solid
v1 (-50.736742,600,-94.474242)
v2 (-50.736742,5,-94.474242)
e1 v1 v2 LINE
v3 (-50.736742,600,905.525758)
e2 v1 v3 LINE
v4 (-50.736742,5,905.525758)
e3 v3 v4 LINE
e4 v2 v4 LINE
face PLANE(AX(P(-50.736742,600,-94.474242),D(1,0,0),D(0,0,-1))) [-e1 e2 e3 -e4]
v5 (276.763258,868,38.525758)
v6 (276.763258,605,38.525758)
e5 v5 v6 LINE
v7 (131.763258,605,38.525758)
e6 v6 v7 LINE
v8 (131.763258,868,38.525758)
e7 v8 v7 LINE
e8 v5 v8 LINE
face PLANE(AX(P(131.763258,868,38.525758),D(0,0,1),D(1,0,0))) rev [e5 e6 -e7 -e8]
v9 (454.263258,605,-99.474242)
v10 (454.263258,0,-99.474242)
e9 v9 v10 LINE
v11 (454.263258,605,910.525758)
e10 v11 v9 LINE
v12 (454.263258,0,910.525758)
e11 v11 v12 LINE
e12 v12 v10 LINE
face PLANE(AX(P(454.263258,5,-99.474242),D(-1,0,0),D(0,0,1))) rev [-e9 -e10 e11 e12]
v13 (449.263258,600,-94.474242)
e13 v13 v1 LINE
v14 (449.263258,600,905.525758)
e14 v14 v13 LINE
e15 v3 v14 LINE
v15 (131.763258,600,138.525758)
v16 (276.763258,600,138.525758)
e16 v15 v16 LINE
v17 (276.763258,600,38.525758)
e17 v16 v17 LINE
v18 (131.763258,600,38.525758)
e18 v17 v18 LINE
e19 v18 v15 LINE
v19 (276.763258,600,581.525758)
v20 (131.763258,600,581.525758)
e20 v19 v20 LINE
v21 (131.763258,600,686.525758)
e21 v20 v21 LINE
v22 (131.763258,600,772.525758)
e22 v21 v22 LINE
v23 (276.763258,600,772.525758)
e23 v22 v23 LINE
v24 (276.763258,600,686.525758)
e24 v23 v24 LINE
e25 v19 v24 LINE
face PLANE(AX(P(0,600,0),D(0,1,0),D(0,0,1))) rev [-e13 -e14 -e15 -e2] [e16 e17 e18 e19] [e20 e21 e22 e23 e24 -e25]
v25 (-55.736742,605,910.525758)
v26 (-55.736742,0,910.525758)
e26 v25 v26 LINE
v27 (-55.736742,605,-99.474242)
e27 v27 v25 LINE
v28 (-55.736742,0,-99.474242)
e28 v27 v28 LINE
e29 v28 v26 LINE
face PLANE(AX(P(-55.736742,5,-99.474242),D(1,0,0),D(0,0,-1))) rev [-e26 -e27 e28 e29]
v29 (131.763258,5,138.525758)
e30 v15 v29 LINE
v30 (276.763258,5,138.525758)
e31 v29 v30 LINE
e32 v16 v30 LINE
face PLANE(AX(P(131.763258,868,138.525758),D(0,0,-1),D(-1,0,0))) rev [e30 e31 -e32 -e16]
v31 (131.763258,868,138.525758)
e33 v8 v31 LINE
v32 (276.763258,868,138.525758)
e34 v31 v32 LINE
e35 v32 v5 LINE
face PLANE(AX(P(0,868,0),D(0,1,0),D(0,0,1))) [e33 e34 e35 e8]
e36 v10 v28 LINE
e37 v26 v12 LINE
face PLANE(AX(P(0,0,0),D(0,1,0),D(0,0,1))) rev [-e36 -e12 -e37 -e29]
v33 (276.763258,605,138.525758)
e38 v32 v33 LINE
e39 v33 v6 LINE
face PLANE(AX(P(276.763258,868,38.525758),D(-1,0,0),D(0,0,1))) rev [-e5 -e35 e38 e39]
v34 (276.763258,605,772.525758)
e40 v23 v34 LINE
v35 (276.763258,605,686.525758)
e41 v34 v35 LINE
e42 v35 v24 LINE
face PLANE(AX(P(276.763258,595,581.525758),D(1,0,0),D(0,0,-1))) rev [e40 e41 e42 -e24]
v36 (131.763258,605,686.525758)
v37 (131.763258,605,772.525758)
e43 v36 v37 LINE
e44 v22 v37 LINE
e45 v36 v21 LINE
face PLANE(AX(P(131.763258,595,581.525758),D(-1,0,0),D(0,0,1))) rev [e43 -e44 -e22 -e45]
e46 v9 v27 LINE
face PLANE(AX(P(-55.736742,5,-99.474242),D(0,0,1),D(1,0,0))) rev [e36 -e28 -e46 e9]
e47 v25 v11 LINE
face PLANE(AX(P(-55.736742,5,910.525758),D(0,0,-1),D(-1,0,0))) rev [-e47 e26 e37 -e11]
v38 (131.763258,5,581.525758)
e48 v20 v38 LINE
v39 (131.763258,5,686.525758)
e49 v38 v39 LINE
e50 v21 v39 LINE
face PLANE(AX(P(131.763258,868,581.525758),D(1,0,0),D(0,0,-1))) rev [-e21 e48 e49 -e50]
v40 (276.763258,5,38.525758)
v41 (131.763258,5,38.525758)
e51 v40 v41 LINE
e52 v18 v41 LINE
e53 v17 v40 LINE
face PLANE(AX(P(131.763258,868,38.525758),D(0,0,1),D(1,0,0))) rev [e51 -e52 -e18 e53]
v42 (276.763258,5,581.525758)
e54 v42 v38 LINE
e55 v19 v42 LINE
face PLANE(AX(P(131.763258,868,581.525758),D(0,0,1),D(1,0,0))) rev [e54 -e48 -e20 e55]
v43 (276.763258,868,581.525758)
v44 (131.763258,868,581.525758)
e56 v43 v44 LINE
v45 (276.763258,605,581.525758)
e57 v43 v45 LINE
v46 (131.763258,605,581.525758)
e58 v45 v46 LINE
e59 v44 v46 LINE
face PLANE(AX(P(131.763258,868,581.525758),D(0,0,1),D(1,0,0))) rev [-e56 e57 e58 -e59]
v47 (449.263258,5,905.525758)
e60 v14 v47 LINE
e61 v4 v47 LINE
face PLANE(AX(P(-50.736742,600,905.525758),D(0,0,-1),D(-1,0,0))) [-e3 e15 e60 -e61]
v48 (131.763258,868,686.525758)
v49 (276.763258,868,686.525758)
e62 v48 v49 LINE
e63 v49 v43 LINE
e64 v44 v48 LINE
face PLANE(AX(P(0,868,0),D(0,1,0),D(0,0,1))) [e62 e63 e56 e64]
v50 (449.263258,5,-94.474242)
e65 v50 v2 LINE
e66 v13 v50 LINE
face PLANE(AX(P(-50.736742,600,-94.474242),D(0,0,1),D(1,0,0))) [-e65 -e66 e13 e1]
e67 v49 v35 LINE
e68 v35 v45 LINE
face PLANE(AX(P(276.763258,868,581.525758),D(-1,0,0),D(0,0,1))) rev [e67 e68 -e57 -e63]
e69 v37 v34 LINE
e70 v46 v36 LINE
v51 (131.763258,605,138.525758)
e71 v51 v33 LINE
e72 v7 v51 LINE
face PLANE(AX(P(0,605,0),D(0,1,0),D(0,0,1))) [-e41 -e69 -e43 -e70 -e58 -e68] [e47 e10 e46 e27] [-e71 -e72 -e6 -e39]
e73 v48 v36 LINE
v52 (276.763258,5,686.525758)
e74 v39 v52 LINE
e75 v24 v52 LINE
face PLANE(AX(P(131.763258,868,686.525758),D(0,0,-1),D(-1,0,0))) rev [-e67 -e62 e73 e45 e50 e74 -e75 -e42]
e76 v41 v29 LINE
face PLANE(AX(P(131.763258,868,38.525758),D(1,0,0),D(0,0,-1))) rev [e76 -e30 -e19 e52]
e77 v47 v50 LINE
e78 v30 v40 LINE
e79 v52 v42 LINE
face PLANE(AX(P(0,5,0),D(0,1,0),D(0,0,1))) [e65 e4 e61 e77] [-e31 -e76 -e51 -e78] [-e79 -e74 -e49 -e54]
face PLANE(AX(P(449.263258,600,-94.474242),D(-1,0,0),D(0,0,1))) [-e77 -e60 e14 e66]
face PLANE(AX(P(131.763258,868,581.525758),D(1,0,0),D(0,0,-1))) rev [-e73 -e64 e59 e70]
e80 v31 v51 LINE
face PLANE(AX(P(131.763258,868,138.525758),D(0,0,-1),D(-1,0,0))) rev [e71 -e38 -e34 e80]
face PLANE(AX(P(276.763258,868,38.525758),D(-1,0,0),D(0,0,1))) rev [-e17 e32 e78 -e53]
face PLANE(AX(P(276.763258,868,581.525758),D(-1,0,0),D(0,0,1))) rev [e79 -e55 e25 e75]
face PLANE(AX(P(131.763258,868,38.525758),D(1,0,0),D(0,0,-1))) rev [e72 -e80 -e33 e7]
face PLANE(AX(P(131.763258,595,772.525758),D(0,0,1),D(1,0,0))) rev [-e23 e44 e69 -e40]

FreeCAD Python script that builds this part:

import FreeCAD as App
import Part
import Sketcher

doc = App.newDocument("Part")
body = doc.addObject("PartDesign::Body", "Body")

sketch1 = doc.addObject("Sketcher::SketchObject", "Sketch")
body.addObject(sketch1)
sketch1.AttachmentSupport = (doc.XZ_Plane, [""])
sketch1.MapMode = "FlatFace"
sketch1.addGeometry(Part.LineSegment(App.Vector(-56, -99, 0), App.Vector(-56, 911, 0)), False)
sketch1.addGeometry(Part.LineSegment(App.Vector(-56, 911, 0), App.Vector(454, 911, 0)), False)
sketch1.addGeometry(Part.LineSegment(App.Vector(454, 911, 0), App.Vector(454, -99, 0)), False)
sketch1.addGeometry(Part.LineSegment(App.Vector(454, -99, 0), App.Vector(-56, -99, 0)), False)
sketch1.addConstraint(Sketcher.Constraint("Coincident", 0, 2, 1, 1))
sketch1.addConstraint(Sketcher.Constraint("Coincident", 1, 2, 2, 1))
sketch1.addConstraint(Sketcher.Constraint("Coincident", 2, 2, 3, 1))
sketch1.addConstraint(Sketcher.Constraint("Coincident", 3, 2, 0, 1))
sketch1.addConstraint(Sketcher.Constraint("Vertical", 0))
sketch1.addConstraint(Sketcher.Constraint("Horizontal", 1))
sketch1.addConstraint(Sketcher.Constraint("Vertical", 2))
sketch1.addConstraint(Sketcher.Constraint("Horizontal", 3))
sketch1.addConstraint(Sketcher.Constraint("DistanceX", 1, 1, 1, 2, 510.0))
sketch1.addConstraint(Sketcher.Constraint("DistanceY", 0, 1, 0, 2, 1010.0))
sketch1.addConstraint(Sketcher.Constraint("DistanceY", -1, 1, 0, 2, 910.525758))
sketch1.addConstraint(Sketcher.Constraint("DistanceX", 0, 2, -1, 1, 55.736742))
pad1 = doc.addObject("PartDesign::Pad", "Pad")
body.addObject(pad1)
pad1.Profile = sketch1
pad1.Length = 5
pad1.Reversed = True

sketch2 = doc.addObject("Sketcher::SketchObject", "Sketch001")
body.addObject(sketch2)
sketch2.AttachmentSupport = (doc.XZ_Plane, [""])
sketch2.MapMode = "FlatFace"
sketch2.AttachmentOffset = App.Placement(App.Vector(0, 0, -5), App.Rotation())
sketch2.addGeometry(Part.LineSegment(App.Vector(-56, -99, 0), App.Vector(-56, 911, 0)), False)
sketch2.addGeometry(Part.LineSegment(App.Vector(-56, 911, 0), App.Vector(454, 911, 0)), False)
sketch2.addGeometry(Part.LineSegment(App.Vector(454, 911, 0), App.Vector(454, -99, 0)), False)
sketch2.addGeometry(Part.LineSegment(App.Vector(454, -99, 0), App.Vector(-56, -99, 0)), False)
sketch2.addGeometry(Part.LineSegment(App.Vector(449, 906, 0), App.Vector(-51, 906, 0)), False)
sketch2.addGeometry(Part.LineSegment(App.Vector(-51, 906, 0), App.Vector(-51, -94, 0)), False)
sketch2.addGeometry(Part.LineSegment(App.Vector(-51, -94, 0), App.Vector(449, -94, 0)), False)
sketch2.addGeometry(Part.LineSegment(App.Vector(449, -94, 0), App.Vector(449, 906, 0)), False)
sketch2.addConstraint(Sketcher.Constraint("Coincident", 0, 2, 1, 1))
sketch2.addConstraint(Sketcher.Constraint("Coincident", 1, 2, 2, 1))
sketch2.addConstraint(Sketcher.Constraint("Coincident", 2, 2, 3, 1))
sketch2.addConstraint(Sketcher.Constraint("Coincident", 3, 2, 0, 1))
sketch2.addConstraint(Sketcher.Constraint("Coincident", 4, 2, 5, 1))
sketch2.addConstraint(Sketcher.Constraint("Coincident", 5, 2, 6, 1))
sketch2.addConstraint(Sketcher.Constraint("Coincident", 6, 2, 7, 1))
sketch2.addConstraint(Sketcher.Constraint("Coincident", 7, 2, 4, 1))
sketch2.addConstraint(Sketcher.Constraint("Vertical", 0))
sketch2.addConstraint(Sketcher.Constraint("Horizontal", 1))
sketch2.addConstraint(Sketcher.Constraint("Vertical", 2))
sketch2.addConstraint(Sketcher.Constraint("Horizontal", 3))
sketch2.addConstraint(Sketcher.Constraint("Horizontal", 4))
sketch2.addConstraint(Sketcher.Constraint("Vertical", 5))
sketch2.addConstraint(Sketcher.Constraint("Horizontal", 6))
sketch2.addConstraint(Sketcher.Constraint("Vertical", 7))
sketch2.addConstraint(Sketcher.Constraint("DistanceX", 1, 1, 1, 2, 510.0))
sketch2.addConstraint(Sketcher.Constraint("DistanceX", 4, 2, 4, 1, 500.0))
sketch2.addConstraint(Sketcher.Constraint("DistanceY", 0, 1, 0, 2, 1010.0))
sketch2.addConstraint(Sketcher.Constraint("DistanceY", 5, 2, 5, 1, 1000.0))
sketch2.addConstraint(Sketcher.Constraint("DistanceX", 0, 2, 4, 2, 5.0))
sketch2.addConstraint(Sketcher.Constraint("DistanceY", 4, 2, 0, 2, 5.0))
sketch2.addConstraint(Sketcher.Constraint("DistanceY", -1, 1, 0, 2, 910.525758))
sketch2.addConstraint(Sketcher.Constraint("DistanceX", 0, 2, -1, 1, 55.736742))
pad2 = doc.addObject("PartDesign::Pad", "Pad001")
body.addObject(pad2)
pad2.Profile = sketch2
pad2.Length = 595
pad2.Reversed = True

sketch3 = doc.addObject("Sketcher::SketchObject", "Sketch002")
body.addObject(sketch3)
sketch3.AttachmentSupport = (doc.XZ_Plane, [""])
sketch3.MapMode = "FlatFace"
sketch3.AttachmentOffset = App.Placement(App.Vector(0, 0, -600), App.Rotation())
sketch3.addGeometry(Part.LineSegment(App.Vector(-56, -99, 0), App.Vector(-56, 911, 0)), False)
sketch3.addGeometry(Part.LineSegment(App.Vector(-56, 911, 0), App.Vector(454, 911, 0)), False)
sketch3.addGeometry(Part.LineSegment(App.Vector(454, 911, 0), App.Vector(454, -99, 0)), False)
sketch3.addGeometry(Part.LineSegment(App.Vector(454, -99, 0), App.Vector(-56, -99, 0)), False)
sketch3.addConstraint(Sketcher.Constraint("Coincident", 0, 2, 1, 1))
sketch3.addConstraint(Sketcher.Constraint("Coincident", 1, 2, 2, 1))
sketch3.addConstraint(Sketcher.Constraint("Coincident", 2, 2, 3, 1))
sketch3.addConstraint(Sketcher.Constraint("Coincident", 3, 2, 0, 1))
sketch3.addConstraint(Sketcher.Constraint("Vertical", 0))
sketch3.addConstraint(Sketcher.Constraint("Horizontal", 1))
sketch3.addConstraint(Sketcher.Constraint("Vertical", 2))
sketch3.addConstraint(Sketcher.Constraint("Horizontal", 3))
sketch3.addConstraint(Sketcher.Constraint("DistanceX", 1, 1, 1, 2, 510.0))
sketch3.addConstraint(Sketcher.Constraint("DistanceY", 0, 1, 0, 2, 1010.0))
sketch3.addConstraint(Sketcher.Constraint("DistanceY", -1, 1, 0, 2, 910.525758))
sketch3.addConstraint(Sketcher.Constraint("DistanceX", 0, 2, -1, 1, 55.736742))
pad3 = doc.addObject("PartDesign::Pad", "Pad002")
body.addObject(pad3)
pad3.Profile = sketch3
pad3.Length = 5
pad3.Reversed = True

sketch4 = doc.addObject("Sketcher::SketchObject", "Sketch003")
body.addObject(sketch4)
sketch4.AttachmentSupport = (doc.XZ_Plane, [""])
sketch4.MapMode = "FlatFace"
sketch4.AttachmentOffset = App.Placement(App.Vector(0, 0, -605), App.Rotation())
sketch4.addGeometry(Part.LineSegment(App.Vector(132, 582, 0), App.Vector(132, 773, 0)), False)
sketch4.addGeometry(Part.LineSegment(App.Vector(132, 773, 0), App.Vector(277, 773, 0)), False)
sketch4.addGeometry(Part.LineSegment(App.Vector(277, 773, 0), App.Vector(277, 582, 0)), False)
sketch4.addGeometry(Part.LineSegment(App.Vector(277, 582, 0), App.Vector(132, 582, 0)), False)
sketch4.addGeometry(Part.LineSegment(App.Vector(132, 39, 0), App.Vector(132, 139, 0)), False)
sketch4.addGeometry(Part.LineSegment(App.Vector(132, 139, 0), App.Vector(277, 139, 0)), False)
sketch4.addGeometry(Part.LineSegment(App.Vector(277, 139, 0), App.Vector(277, 39, 0)), False)
sketch4.addGeometry(Part.LineSegment(App.Vector(277, 39, 0), App.Vector(132, 39, 0)), False)
sketch4.addConstraint(Sketcher.Constraint("Coincident", 0, 2, 1, 1))
sketch4.addConstraint(Sketcher.Constraint("Coincident", 1, 2, 2, 1))
sketch4.addConstraint(Sketcher.Constraint("Coincident", 2, 2, 3, 1))
sketch4.addConstraint(Sketcher.Constraint("Coincident", 3, 2, 0, 1))
sketch4.addConstraint(Sketcher.Constraint("Coincident", 4, 2, 5, 1))
sketch4.addConstraint(Sketcher.Constraint("Coincident", 5, 2, 6, 1))
sketch4.addConstraint(Sketcher.Constraint("Coincident", 6, 2, 7, 1))
sketch4.addConstraint(Sketcher.Constraint("Coincident", 7, 2, 4, 1))
sketch4.addConstraint(Sketcher.Constraint("Vertical", 0))
sketch4.addConstraint(Sketcher.Constraint("Horizontal", 1))
sketch4.addConstraint(Sketcher.Constraint("Vertical", 2))
sketch4.addConstraint(Sketcher.Constraint("Horizontal", 3))
sketch4.addConstraint(Sketcher.Constraint("Vertical", 4))
sketch4.addConstraint(Sketcher.Constraint("Horizontal", 5))
sketch4.addConstraint(Sketcher.Constraint("Vertical", 6))
sketch4.addConstraint(Sketcher.Constraint("Horizontal", 7))
sketch4.addConstraint(Sketcher.Constraint("Vertical", 3, 2, 4, 2))
sketch4.addConstraint(Sketcher.Constraint("Vertical", 2, 2, 5, 2))
sketch4.addConstraint(Sketcher.Constraint("DistanceX", 1, 1, 1, 2, 145.0))
sketch4.addConstraint(Sketcher.Constraint("DistanceY", 0, 1, 0, 2, 191.0))
sketch4.addConstraint(Sketcher.Constraint("DistanceY", 4, 1, 4, 2, 100.0))
sketch4.addConstraint(Sketcher.Constraint("DistanceY", 4, 2, 3, 2, 443.0))
sketch4.addConstraint(Sketcher.Constraint("DistanceY", -1, 1, 0, 2, 772.525758))
sketch4.addConstraint(Sketcher.Constraint("DistanceX", -1, 1, 0, 2, 131.763258))
pocket1 = doc.addObject("PartDesign::Pocket", "Pocket")
body.addObject(pocket1)
pocket1.Profile = sketch4
pocket1.Length = 10
pocket1.Reversed = True

sketch5 = doc.addObject("Sketcher::SketchObject", "Sketch004")
body.addObject(sketch5)
sketch5.AttachmentSupport = (doc.XZ_Plane, [""])
sketch5.MapMode = "FlatFace"
sketch5.AttachmentOffset = App.Placement(App.Vector(0, 0, -5), App.Rotation())
sketch5.addGeometry(Part.LineSegment(App.Vector(132, 39, 0), App.Vector(132, 139, 0)), False)
sketch5.addGeometry(Part.LineSegment(App.Vector(132, 139, 0), App.Vector(277, 139, 0)), False)
sketch5.addGeometry(Part.LineSegment(App.Vector(277, 139, 0), App.Vector(277, 39, 0)), False)
sketch5.addGeometry(Part.LineSegment(App.Vector(277, 39, 0), App.Vector(132, 39, 0)), False)
sketch5.addGeometry(Part.LineSegment(App.Vector(132, 582, 0), App.Vector(132, 687, 0)), False)
sketch5.addGeometry(Part.LineSegment(App.Vector(132, 687, 0), App.Vector(277, 687, 0)), False)
sketch5.addGeometry(Part.LineSegment(App.Vector(277, 687, 0), App.Vector(277, 582, 0)), False)
sketch5.addGeometry(Part.LineSegment(App.Vector(277, 582, 0), App.Vector(132, 582, 0)), False)
sketch5.addConstraint(Sketcher.Constraint("Coincident", 0, 2, 1, 1))
sketch5.addConstraint(Sketcher.Constraint("Coincident", 1, 2, 2, 1))
sketch5.addConstraint(Sketcher.Constraint("Coincident", 2, 2, 3, 1))
sketch5.addConstraint(Sketcher.Constraint("Coincident", 3, 2, 0, 1))
sketch5.addConstraint(Sketcher.Constraint("Coincident", 4, 2, 5, 1))
sketch5.addConstraint(Sketcher.Constraint("Coincident", 5, 2, 6, 1))
sketch5.addConstraint(Sketcher.Constraint("Coincident", 6, 2, 7, 1))
sketch5.addConstraint(Sketcher.Constraint("Coincident", 7, 2, 4, 1))
sketch5.addConstraint(Sketcher.Constraint("Vertical", 0))
sketch5.addConstraint(Sketcher.Constraint("Horizontal", 1))
sketch5.addConstraint(Sketcher.Constraint("Vertical", 2))
sketch5.addConstraint(Sketcher.Constraint("Horizontal", 3))
sketch5.addConstraint(Sketcher.Constraint("Vertical", 4))
sketch5.addConstraint(Sketcher.Constraint("Horizontal", 5))
sketch5.addConstraint(Sketcher.Constraint("Vertical", 6))
sketch5.addConstraint(Sketcher.Constraint("Horizontal", 7))
sketch5.addConstraint(Sketcher.Constraint("Vertical", 3, 2, 4, 2))
sketch5.addConstraint(Sketcher.Constraint("Vertical", 2, 2, 5, 2))
sketch5.addConstraint(Sketcher.Constraint("DistanceX", 1, 1, 1, 2, 145.0))
sketch5.addConstraint(Sketcher.Constraint("DistanceY", 0, 1, 0, 2, 100.0))
sketch5.addConstraint(Sketcher.Constraint("DistanceY", 4, 1, 4, 2, 105.0))
sketch5.addConstraint(Sketcher.Constraint("DistanceY", 0, 2, 4, 2, 548.0))
sketch5.addConstraint(Sketcher.Constraint("DistanceY", -1, 1, 0, 2, 138.525758))
sketch5.addConstraint(Sketcher.Constraint("DistanceX", -1, 1, 0, 2, 131.763258))
pad4 = doc.addObject("PartDesign::Pad", "Pad003")
body.addObject(pad4)
pad4.Profile = sketch5
pad4.Length = 863
pad4.Reversed = True

doc.recompute()
